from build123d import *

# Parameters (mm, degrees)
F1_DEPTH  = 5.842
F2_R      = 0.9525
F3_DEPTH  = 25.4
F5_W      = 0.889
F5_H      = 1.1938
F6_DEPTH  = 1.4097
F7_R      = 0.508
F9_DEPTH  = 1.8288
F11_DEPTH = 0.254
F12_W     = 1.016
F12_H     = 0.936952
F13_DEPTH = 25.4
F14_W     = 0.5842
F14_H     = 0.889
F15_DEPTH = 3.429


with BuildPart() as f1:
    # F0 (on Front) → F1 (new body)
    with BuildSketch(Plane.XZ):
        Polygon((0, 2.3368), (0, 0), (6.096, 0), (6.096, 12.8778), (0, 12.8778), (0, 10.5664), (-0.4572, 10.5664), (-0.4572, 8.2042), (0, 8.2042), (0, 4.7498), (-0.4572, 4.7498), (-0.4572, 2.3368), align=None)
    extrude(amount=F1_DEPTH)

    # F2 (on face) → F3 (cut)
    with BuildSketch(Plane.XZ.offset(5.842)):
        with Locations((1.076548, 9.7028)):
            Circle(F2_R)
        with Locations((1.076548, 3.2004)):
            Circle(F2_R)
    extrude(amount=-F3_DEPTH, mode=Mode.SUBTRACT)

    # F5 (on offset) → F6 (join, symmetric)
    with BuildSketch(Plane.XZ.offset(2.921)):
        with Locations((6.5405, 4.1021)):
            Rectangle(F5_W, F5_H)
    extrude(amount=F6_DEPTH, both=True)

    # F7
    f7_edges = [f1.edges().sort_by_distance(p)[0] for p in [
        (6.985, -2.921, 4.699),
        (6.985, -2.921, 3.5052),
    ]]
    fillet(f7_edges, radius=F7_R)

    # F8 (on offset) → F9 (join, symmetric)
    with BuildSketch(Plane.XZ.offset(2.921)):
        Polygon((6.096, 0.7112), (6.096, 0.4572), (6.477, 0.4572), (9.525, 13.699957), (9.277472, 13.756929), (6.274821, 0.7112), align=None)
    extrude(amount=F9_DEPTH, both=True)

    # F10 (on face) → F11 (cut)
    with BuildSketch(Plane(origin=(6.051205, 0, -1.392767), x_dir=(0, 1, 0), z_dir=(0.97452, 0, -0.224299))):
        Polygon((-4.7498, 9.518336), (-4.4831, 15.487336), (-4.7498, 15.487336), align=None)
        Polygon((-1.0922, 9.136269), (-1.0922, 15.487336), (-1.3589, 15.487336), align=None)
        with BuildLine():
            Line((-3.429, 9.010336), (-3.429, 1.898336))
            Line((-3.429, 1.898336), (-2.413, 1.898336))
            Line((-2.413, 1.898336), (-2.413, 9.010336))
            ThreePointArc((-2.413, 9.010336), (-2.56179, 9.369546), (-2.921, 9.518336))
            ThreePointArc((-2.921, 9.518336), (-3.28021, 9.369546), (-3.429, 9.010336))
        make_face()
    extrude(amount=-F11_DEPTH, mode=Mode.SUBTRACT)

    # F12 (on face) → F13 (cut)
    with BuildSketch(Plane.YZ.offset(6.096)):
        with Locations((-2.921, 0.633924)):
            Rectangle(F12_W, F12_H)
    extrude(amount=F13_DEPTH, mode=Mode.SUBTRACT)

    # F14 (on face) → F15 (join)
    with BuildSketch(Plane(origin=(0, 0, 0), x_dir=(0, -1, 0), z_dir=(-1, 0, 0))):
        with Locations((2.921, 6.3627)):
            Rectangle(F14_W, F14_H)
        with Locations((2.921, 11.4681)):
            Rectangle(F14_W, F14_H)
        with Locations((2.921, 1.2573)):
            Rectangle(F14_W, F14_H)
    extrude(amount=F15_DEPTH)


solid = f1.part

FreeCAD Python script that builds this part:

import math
import FreeCAD as App
import Part
import Sketcher
from FreeCAD import Vector
Q = App.Units.Quantity


def edges_at(feature, points):
    """Names of the edges that pass closest to the given points."""
    edges = feature.Shape.Edges
    near = lambda p: min(range(len(edges)), key=lambda i: edges[i].distToShape(Part.Vertex(*p))[0])
    return sorted({f"Edge{near(p) + 1}" for p in points})


def add_polygon(sketch, points):
    """Adds a closed chain of lines whose ends are joined by coincident constraints."""
    first, n = sketch.GeometryCount, len(points)
    for a, b in zip(points, points[1:] + points[:1]):
        sketch.addGeometry(Part.LineSegment(App.Vector(*a, 0), App.Vector(*b, 0)), False)
    for i in range(n):
        sketch.addConstraint(Sketcher.Constraint("Coincident", first + i, 2, first + (i + 1) % n, 1))

doc = App.newDocument("Part")
body = doc.addObject("PartDesign::Body", "Body")

sketch1 = body.newObject("Sketcher::SketchObject", "Sketch")
sketch1.AttachmentSupport = (doc.getObject("XZ_Plane"), [""])
sketch1.MapMode = "FlatFace"
add_polygon(sketch1, [(0, 2.3368), (0, 0), (6.096, 0), (6.096, 12.8778), (0, 12.8778), (0, 10.5664), (-0.4572, 10.5664), (-0.4572, 8.2042), (0, 8.2042), (0, 4.7498), (-0.4572, 4.7498), (-0.4572, 2.3368)])
sketch1.addConstraint(Sketcher.Constraint("Vertical", 0))
sketch1.addConstraint(Sketcher.Constraint("Horizontal", 1))
sketch1.addConstraint(Sketcher.Constraint("Vertical", 2))
sketch1.addConstraint(Sketcher.Constraint("Horizontal", 3))
sketch1.addConstraint(Sketcher.Constraint("Vertical", 4))
sketch1.addConstraint(Sketcher.Constraint("Horizontal", 5))
sketch1.addConstraint(Sketcher.Constraint("Vertical", 6))
sketch1.addConstraint(Sketcher.Constraint("Horizontal", 7))
sketch1.addConstraint(Sketcher.Constraint("Vertical", 8))
sketch1.addConstraint(Sketcher.Constraint("Horizontal", 9))
sketch1.addConstraint(Sketcher.Constraint("Vertical", 10))
sketch1.addConstraint(Sketcher.Constraint("Horizontal", 11))
sketch1.addConstraint(Sketcher.Constraint("Coincident", 0, 2, -1, 1))
sketch1.addConstraint(Sketcher.Constraint("PointOnObject", 3, 2, -2))
sketch1.addConstraint(Sketcher.Constraint("PointOnObject", 7, 2, -2))
sketch1.addConstraint(Sketcher.Constraint("Vertical", 6, 2, 9, 2))
sketch1.addConstraint(Sketcher.Constraint("DistanceX", 1, 1, 1, 2, Q("0.24 in")))
sketch1.addConstraint(Sketcher.Constraint("DistanceX", 5, 2, 5, 1, Q("0.018 in")))
sketch1.addConstraint(Sketcher.Constraint("DistanceY", 0, 2, 0, 1, Q("0.092 in")))
sketch1.addConstraint(Sketcher.Constraint("DistanceY", 2, 1, 2, 2, Q("0.507 in")))
sketch1.addConstraint(Sketcher.Constraint("DistanceY", 4, 2, 4, 1, Q("0.091 in")))
sketch1.addConstraint(Sketcher.Constraint("DistanceY", 6, 2, 6, 1, Q("0.093 in")))
sketch1.addConstraint(Sketcher.Constraint("DistanceY", 8, 2, 8, 1, Q("0.136 in")))
pad1 = body.newObject("PartDesign::Pad", "Pad")
pad1.Profile = sketch1
pad1.Length = Q("0.23 in")

sketch2 = body.newObject("Sketcher::SketchObject", "Sketch001")
sketch2.AttachmentSupport = (doc.getObject("XZ_Plane"), [""])
sketch2.MapMode = "FlatFace"
sketch2.AttachmentOffset = App.Placement(Vector(0, 0, 0.23 * 25.4), App.Rotation())
sketch2.addGeometry(Part.Circle(Vector(1.076548, 9.7028, 0), Vector(0, 0, 1), 0.9525), False)
sketch2.addGeometry(Part.Circle(Vector(1.076548, 3.2004, 0), Vector(0, 0, 1), 0.9525), False)
sketch2.addConstraint(Sketcher.Constraint("Equal", 0, 1))
sketch2.addConstraint(Sketcher.Constraint("Vertical", 0, 3, 1, 3))
sketch2.addConstraint(Sketcher.Constraint("Diameter", 0, Q("0.075 in")))
sketch2.addConstraint(Sketcher.Constraint("DistanceY", -1, 1, 0, 3, Q("0.382 in")))
sketch2.addConstraint(Sketcher.Constraint("DistanceY", -1, 1, 1, 3, Q("0.126 in")))
sketch2.addConstraint(Sketcher.Constraint("DistanceX", -1, 1, 0, 3, 1.076548))
pocket1 = body.newObject("PartDesign::Pocket", "Pocket")
pocket1.Profile = sketch2
pocket1.Length = Q("1 in")

sketch3 = body.newObject("Sketcher::SketchObject", "Sketch002")
sketch3.AttachmentSupport = (doc.getObject("XZ_Plane"), [""])
sketch3.MapMode = "FlatFace"
sketch3.AttachmentOffset = App.Placement(Vector(0, 0, 0.115 * 25.4), App.Rotation())
add_polygon(sketch3, [(6.096, 4.699), (6.096, 3.5052), (6.985, 3.5052), (6.985, 4.699)])
sketch3.addConstraint(Sketcher.Constraint("Vertical", 0))
sketch3.addConstraint(Sketcher.Constraint("Horizontal", 1))
sketch3.addConstraint(Sketcher.Constraint("Vertical", 2))
sketch3.addConstraint(Sketcher.Constraint("Horizontal", 3))
sketch3.addConstraint(Sketcher.Constraint("DistanceX", 1, 1, 1, 2, Q("0.035 in")))
sketch3.addConstraint(Sketcher.Constraint("DistanceY", 0, 2, 0, 1, Q("0.047 in")))
sketch3.addConstraint(Sketcher.Constraint("DistanceX", -1, 1, 0, 2, Q("0.24 in")))
sketch3.addConstraint(Sketcher.Constraint("DistanceY", -1, 1, 0, 2, Q("0.138 in")))
pad2 = body.newObject("PartDesign::Pad", "Pad001")
pad2.Profile = sketch3
pad2.Length = Q("0.111 in")
pad2.Midplane = True
doc.recompute()

fillet = body.newObject("PartDesign::Fillet", "Fillet")
fillet.Base = (pad2, edges_at(pad2, [(6.985, -2.921, 4.699), (6.985, -2.921, 3.505)]))
fillet.Radius = Q("0.02 in")

sketch4 = body.newObject("Sketcher::SketchObject", "Sketch003")
sketch4.AttachmentSupport = (doc.getObject("XZ_Plane"), [""])
sketch4.MapMode = "FlatFace"
sketch4.AttachmentOffset = App.Placement(Vector(0, 0, 0.115 * 25.4), App.Rotation())
add_polygon(sketch4, [(6.096, 0.7112), (6.096, 0.4572), (6.477, 0.4572), (9.525, 13.699957), (9.277472, 13.756929), (6.274821, 0.7112)])
sketch4.addConstraint(Sketcher.Constraint("Vertical", 0))
sketch4.addConstraint(Sketcher.Constraint("Horizontal", 1))
sketch4.addConstraint(Sketcher.Constraint("Horizontal", 5))
sketch4.addConstraint(Sketcher.Constraint("Perpendicular", 2, 3))
sketch4.addConstraint(Sketcher.Constraint("Perpendicular", 3, 4))
sketch4.addConstraint(Sketcher.Constraint("DistanceY", 0, 2, 0, 1, Q("0.01 in")))
sketch4.addConstraint(Sketcher.Constraint("Distance", 3, Q("0.01 in")))
sketch4.addConstraint(Sketcher.Constraint("DistanceX", 1, 1, 1, 2, Q("0.015 in")))
sketch4.addConstraint(Sketcher.Constraint("DistanceX", -1, 1, 0, 2, Q("0.24 in")))
sketch4.addConstraint(Sketcher.Constraint("DistanceX", 1, 2, 2, 2, Q("0.12 in")))
sketch4.addConstraint(Sketcher.Constraint("Distance", 2, Q("0.535 in")))
sketch4.addConstraint(Sketcher.Constraint("DistanceY", -1, 1, 0, 2, Q("0.018 in")))
pad3 = body.newObject("PartDesign::Pad", "Pad002")
pad3.Profile = sketch4
pad3.Length = Q("0.144 in")
pad3.Midplane = True

sketch5 = body.newObject("Sketcher::SketchObject", "Sketch004")
sketch5.Placement = App.Placement(Vector(6.051205, 0, -1.392767), App.Rotation(Vector(0, 1, 0), Vector(0.224299082, 0, 0.974520355), Vector(0.974520355, 0, -0.224299082), "ZXY"))
add_polygon(sketch5, [(-4.7498, 9.518336), (-4.4831, 15.487336), (-4.7498, 15.487336)])
add_polygon(sketch5, [(-1.0922, 9.136269), (-1.0922, 15.487336), (-1.3589, 15.487336)])
sketch5.addGeometry(Part.LineSegment(Vector(-3.429, 9.010336, 0), Vector(-3.429, 1.898336, 0)), False)
sketch5.addGeometry(Part.LineSegment(Vector(-3.429, 1.898336, 0), Vector(-2.413, 1.898336, 0)), False)
sketch5.addGeometry(Part.LineSegment(Vector(-2.413, 1.898336, 0), Vector(-2.413, 9.010336, 0)), False)
sketch5.addGeometry(Part.ArcOfCircle(Part.Circle(Vector(-2.921001, 9.010335, 0), Vector(0, 0, 1), 0.508001), math.radians(0.000094), math.radians(89.999906)), False)
sketch5.addGeometry(Part.ArcOfCircle(Part.Circle(Vector(-2.920999, 9.010335, 0), Vector(0, 0, 1), 0.508001), math.radians(90.000094), math.radians(179.999906)), False)
sketch5.addConstraint(Sketcher.Constraint("Coincident", 6, 2, 7, 1))
sketch5.addConstraint(Sketcher.Constraint("Coincident", 7, 2, 8, 1))
sketch5.addConstraint(Sketcher.Constraint("Tangent", 8, 2, 9, 1))
sketch5.addConstraint(Sketcher.Constraint("Coincident", 9, 2, 10, 1))
sketch5.addConstraint(Sketcher.Constraint("Tangent", 10, 2, 6, 1))
sketch5.addConstraint(Sketcher.Constraint("Horizontal", 1))
sketch5.addConstraint(Sketcher.Constraint("Vertical", 2))
sketch5.addConstraint(Sketcher.Constraint("Vertical", 3))
sketch5.addConstraint(Sketcher.Constraint("Horizontal", 4))
sketch5.addConstraint(Sketcher.Constraint("Vertical", 6))
sketch5.addConstraint(Sketcher.Constraint("Horizontal", 7))
sketch5.addConstraint(Sketcher.Constraint("Vertical", 8))
sketch5.addConstraint(Sketcher.Constraint("Coincident", 10, 3, 9, 3))
sketch5.addConstraint(Sketcher.Constraint("Horizontal", 1, 2, 3, 2))
sketch5.addConstraint(Sketcher.Constraint("Horizontal", 2, 2, 9, 2))
sketch5.addConstraint(Sketcher.Constraint("Vertical", 10, 3, 9, 2))
sketch5.addConstraint(Sketcher.Constraint("Equal", 1, 4))
sketch5.addConstraint(Sketcher.Constraint("Radius", 9, Q("0.02 in")))
sketch5.addConstraint(Sketcher.Constraint("DistanceY", 6, 2, 6, 1, Q("0.28 in")))
sketch5.addConstraint(Sketcher.Constraint("DistanceY", 2, 2, 2, 1, Q("0.235 in")))
sketch5.addConstraint(Sketcher.Constraint("DistanceX", 1, 2, 1, 1, Q("0.0105 in")))
sketch5.addConstraint(Sketcher.Constraint("DistanceX", 9, 3, -1, 1, Q("0.115 in")))
sketch5.addConstraint(Sketcher.Constraint("DistanceX", 1, 2, -1, 1, Q("0.187 in")))
sketch5.addConstraint(Sketcher.Constraint("DistanceX", 3, 2, -1, 1, Q("0.043 in")))
sketch5.addConstraint(Sketcher.Constraint("DistanceY", 3, 1, 3, 2, 6.351067))
sketch5.addConstraint(Sketcher.Constraint("DistanceY", -1, 1, 5, 2, 9.136269))
pocket2 = body.newObject("PartDesign::Pocket", "Pocket001")
pocket2.Profile = sketch5
pocket2.Length = Q("0.01 in")

sketch6 = body.newObject("Sketcher::SketchObject", "Sketch005")
sketch6.AttachmentSupport = (doc.getObject("YZ_Plane"), [""])
sketch6.MapMode = "FlatFace"
sketch6.AttachmentOffset = App.Placement(Vector(0, 0, 0.24 * 25.4), App.Rotation())
add_polygon(sketch6, [(-3.429, 1.1024), (-3.429, 0.165448), (-2.413, 0.165448), (-2.413, 1.1024)])
sketch6.addConstraint(Sketcher.Constraint("Vertical", 0))
sketch6.addConstraint(Sketcher.Constraint("Horizontal", 1))
sketch6.addConstraint(Sketcher.Constraint("Vertical", 2))
sketch6.addConstraint(Sketcher.Constraint("Horizontal", 3))
sketch6.addConstraint(Sketcher.Constraint("DistanceX", 1, 1, 1, 2, Q("0.04 in")))
sketch6.addConstraint(Sketcher.Constraint("DistanceX", 0, 2, -1, 1, Q("0.135 in")))
sketch6.addConstraint(Sketcher.Constraint("DistanceY", -1, 1, 2, 2, 1.1024))
sketch6.addConstraint(Sketcher.Constraint("DistanceY", 0, 2, 0, 1, 0.936952))
pocket3 = body.newObject("PartDesign::Pocket", "Pocket002")
pocket3.Profile = sketch6
pocket3.Length = Q("1 in")
pocket3.Reversed = True

sketch7 = body.newObject("Sketcher::SketchObject", "Sketch006")
sketch7.AttachmentSupport = (doc.getObject("YZ_Plane"), [""])
sketch7.MapMode = "FlatFace"
add_polygon(sketch7, [(-2.6289, 6.8072), (-2.6289, 5.9182), (-3.2131, 5.9182), (-3.2131, 6.8072)])
add_polygon(sketch7, [(-2.6289, 11.9126), (-2.6289, 11.0236), (-3.2131, 11.0236), (-3.2131, 11.9126)])
add_polygon(sketch7, [(-2.6289, 1.7018), (-2.6289, 0.8128), (-3.2131, 0.8128), (-3.2131, 1.7018)])
sketch7.addConstraint(Sketcher.Constraint("Vertical", 0))
sketch7.addConstraint(Sketcher.Constraint("Horizontal", 1))
sketch7.addConstraint(Sketcher.Constraint("Vertical", 2))
sketch7.addConstraint(Sketcher.Constraint("Horizontal", 3))
sketch7.addConstraint(Sketcher.Constraint("Vertical", 4))
sketch7.addConstraint(Sketcher.Constraint("Horizontal", 5))
sketch7.addConstraint(Sketcher.Constraint("Vertical", 6))
sketch7.addConstraint(Sketcher.Constraint("Horizontal", 7))
sketch7.addConstraint(Sketcher.Constraint("Vertical", 8))
sketch7.addConstraint(Sketcher.Constraint("Horizontal", 9))
sketch7.addConstraint(Sketcher.Constraint("Vertical", 10))
sketch7.addConstraint(Sketcher.Constraint("Horizontal", 11))
sketch7.addConstraint(Sketcher.Constraint("Vertical", 3, 2, 4, 2))
sketch7.addConstraint(Sketcher.Constraint("Vertical", 2, 2, 5, 2))
sketch7.addConstraint(Sketcher.Constraint("Vertical", 7, 2, 8, 2))
sketch7.addConstraint(Sketcher.Constraint("Vertical", 6, 2, 9, 2))
sketch7.addConstraint(Sketcher.Constraint("Equal", 2, 4))
sketch7.addConstraint(Sketcher.Constraint("Equal", 6, 8))
sketch7.addConstraint(Sketcher.Constraint("DistanceX", 1, 2, 1, 1, Q("0.023 in")))
sketch7.addConstraint(Sketcher.Constraint("DistanceY", 0, 2, 0, 1, Q("0.035 in")))
sketch7.addConstraint(Sketcher.Constraint("DistanceY", -1, 1, 0, 2, Q("0.233 in")))
sketch7.addConstraint(Sketcher.Constraint("DistanceY", -1, 1, 4, 2, Q("0.434 in")))
sketch7.addConstraint(Sketcher.Constraint("DistanceY", -1, 1, 8, 2, Q("0.032 in")))
sketch7.addConstraint(Sketcher.Constraint("DistanceX", 0, 2, -1, 1, Q("0.1035 in")))
pad4 = body.newObject("PartDesign::Pad", "Pad003")
pad4.Profile = sketch7
pad4.Length = Q("0.135 in")
pad4.Reversed = True

doc.recompute()
